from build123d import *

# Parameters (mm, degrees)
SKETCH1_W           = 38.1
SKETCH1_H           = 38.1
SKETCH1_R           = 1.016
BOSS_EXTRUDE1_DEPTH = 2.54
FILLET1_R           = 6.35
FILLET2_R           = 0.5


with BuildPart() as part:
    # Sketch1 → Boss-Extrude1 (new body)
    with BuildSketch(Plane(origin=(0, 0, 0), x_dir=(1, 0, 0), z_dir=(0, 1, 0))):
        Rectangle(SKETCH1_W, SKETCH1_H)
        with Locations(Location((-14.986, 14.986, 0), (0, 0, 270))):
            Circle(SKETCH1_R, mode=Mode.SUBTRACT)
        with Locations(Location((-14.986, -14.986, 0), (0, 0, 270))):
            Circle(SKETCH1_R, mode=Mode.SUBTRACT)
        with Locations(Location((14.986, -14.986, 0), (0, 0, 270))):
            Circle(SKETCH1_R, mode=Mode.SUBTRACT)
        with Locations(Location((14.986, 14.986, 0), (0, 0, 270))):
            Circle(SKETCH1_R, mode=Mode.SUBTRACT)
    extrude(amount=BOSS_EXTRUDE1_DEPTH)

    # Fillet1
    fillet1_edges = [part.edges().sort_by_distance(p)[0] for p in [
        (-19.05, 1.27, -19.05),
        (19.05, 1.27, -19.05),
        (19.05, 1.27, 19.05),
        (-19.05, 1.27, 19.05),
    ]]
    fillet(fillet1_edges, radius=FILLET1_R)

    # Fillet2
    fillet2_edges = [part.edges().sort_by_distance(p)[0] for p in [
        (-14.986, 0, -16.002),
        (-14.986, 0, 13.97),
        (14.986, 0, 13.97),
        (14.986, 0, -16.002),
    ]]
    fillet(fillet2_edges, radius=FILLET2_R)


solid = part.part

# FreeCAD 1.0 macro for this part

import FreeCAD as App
import Part
import Sketcher

V = App.Vector
Q = App.Units.Quantity


def edges_at(feature, points):
    """Names of the edges that pass closest to the given points."""
    edges = feature.Shape.Edges
    near = lambda p: min(range(len(edges)), key=lambda i: edges[i].distToShape(Part.Vertex(*p))[0])
    return sorted({f"Edge{near(p) + 1}" for p in points})


def add_polygon(sketch, points):
    """Adds a closed chain of lines whose ends are joined by coincident constraints."""
    first, n = sketch.GeometryCount, len(points)
    for a, b in zip(points, points[1:] + points[:1]):
        sketch.addGeometry(Part.LineSegment(App.Vector(*a, 0), App.Vector(*b, 0)), False)
    for i in range(n):
        sketch.addConstraint(Sketcher.Constraint("Coincident", first + i, 2, first + (i + 1) % n, 1))

doc = App.newDocument("Part")
body = doc.addObject("PartDesign::Body", "Body")

# Sketch on XZ plane
sketch1 = body.newObject("Sketcher::SketchObject", "Sketch")
sketch1.AttachmentSupport = (doc.getObject("XZ_Plane"), [""])
sketch1.MapMode = "FlatFace"
add_polygon(sketch1, [(-19.05, -19.05), (-19.05, 19.05), (19.05, 19.05), (19.05, -19.05)])  # lines 0-3
sketch1.addGeometry(Part.Circle(V(-14.986, 14.986, 0), V(0, 0, 1), 1.016), False)  # 4
sketch1.addGeometry(Part.Circle(V(14.986, 14.986, 0), V(0, 0, 1), 1.016), False)  # 5
sketch1.addGeometry(Part.Circle(V(-14.986, -14.986, 0), V(0, 0, 1), 1.016), False)  # 6
sketch1.addGeometry(Part.Circle(V(14.986, -14.986, 0), V(0, 0, 1), 1.016), False)  # 7
sketch1.addConstraint([
    Sketcher.Constraint("Vertical", 0),
    Sketcher.Constraint("Horizontal", 1),
    Sketcher.Constraint("Vertical", 2),
    Sketcher.Constraint("Horizontal", 3),
    Sketcher.Constraint("Equal", 4, 5),
    Sketcher.Constraint("Equal", 5, 6),
    Sketcher.Constraint("Equal", 6, 7),
    Sketcher.Constraint("Symmetric", 5, 3, 6, 3, -1, 1),
    Sketcher.Constraint("Symmetric", 4, 3, 7, 3, -1, 1),
    Sketcher.Constraint("Symmetric", 0, 2, 2, 2, -1, 1),
    Sketcher.Constraint("Symmetric", 4, 3, 5, 3, -2),
    Sketcher.Constraint("Equal", 3, 0),
    Sketcher.Constraint("Diameter", 4, Q("0.08 in")),
    Sketcher.Constraint("DistanceX", 1, 1, 1, 2, Q("1.5 in")),
    Sketcher.Constraint("DistanceX", 4, 3, -1, 1, Q("0.59 in")),
    Sketcher.Constraint("DistanceY", -1, 1, 4, 3, Q("0.59 in")),
])
pad1 = body.newObject("PartDesign::Pad", "Pad")
pad1.Profile = sketch1
pad1.Length = Q("0.1 in")
pad1.Reversed = True
doc.recompute()

fillet = body.newObject("PartDesign::Fillet", "Fillet")
fillet.Base = (pad1, edges_at(pad1, [
    (-19.05, 1.27, -19.05),
    (19.05, 1.27, -19.05),
    (19.05, 1.27, 19.05),
    (-19.05, 1.27, 19.05),
]))
fillet.Radius = Q("0.25 in")
doc.recompute()

fillet2 = body.newObject("PartDesign::Fillet", "Fillet001")
fillet2.Base = (fillet, edges_at(fillet, [
    (-14.986, 0, -16.002),
    (-14.986, 0, 13.97),
    (14.986, 0, 13.97),
    (14.986, 0, -16.002),
]))
fillet2.Radius = 0.5

doc.recompute()
